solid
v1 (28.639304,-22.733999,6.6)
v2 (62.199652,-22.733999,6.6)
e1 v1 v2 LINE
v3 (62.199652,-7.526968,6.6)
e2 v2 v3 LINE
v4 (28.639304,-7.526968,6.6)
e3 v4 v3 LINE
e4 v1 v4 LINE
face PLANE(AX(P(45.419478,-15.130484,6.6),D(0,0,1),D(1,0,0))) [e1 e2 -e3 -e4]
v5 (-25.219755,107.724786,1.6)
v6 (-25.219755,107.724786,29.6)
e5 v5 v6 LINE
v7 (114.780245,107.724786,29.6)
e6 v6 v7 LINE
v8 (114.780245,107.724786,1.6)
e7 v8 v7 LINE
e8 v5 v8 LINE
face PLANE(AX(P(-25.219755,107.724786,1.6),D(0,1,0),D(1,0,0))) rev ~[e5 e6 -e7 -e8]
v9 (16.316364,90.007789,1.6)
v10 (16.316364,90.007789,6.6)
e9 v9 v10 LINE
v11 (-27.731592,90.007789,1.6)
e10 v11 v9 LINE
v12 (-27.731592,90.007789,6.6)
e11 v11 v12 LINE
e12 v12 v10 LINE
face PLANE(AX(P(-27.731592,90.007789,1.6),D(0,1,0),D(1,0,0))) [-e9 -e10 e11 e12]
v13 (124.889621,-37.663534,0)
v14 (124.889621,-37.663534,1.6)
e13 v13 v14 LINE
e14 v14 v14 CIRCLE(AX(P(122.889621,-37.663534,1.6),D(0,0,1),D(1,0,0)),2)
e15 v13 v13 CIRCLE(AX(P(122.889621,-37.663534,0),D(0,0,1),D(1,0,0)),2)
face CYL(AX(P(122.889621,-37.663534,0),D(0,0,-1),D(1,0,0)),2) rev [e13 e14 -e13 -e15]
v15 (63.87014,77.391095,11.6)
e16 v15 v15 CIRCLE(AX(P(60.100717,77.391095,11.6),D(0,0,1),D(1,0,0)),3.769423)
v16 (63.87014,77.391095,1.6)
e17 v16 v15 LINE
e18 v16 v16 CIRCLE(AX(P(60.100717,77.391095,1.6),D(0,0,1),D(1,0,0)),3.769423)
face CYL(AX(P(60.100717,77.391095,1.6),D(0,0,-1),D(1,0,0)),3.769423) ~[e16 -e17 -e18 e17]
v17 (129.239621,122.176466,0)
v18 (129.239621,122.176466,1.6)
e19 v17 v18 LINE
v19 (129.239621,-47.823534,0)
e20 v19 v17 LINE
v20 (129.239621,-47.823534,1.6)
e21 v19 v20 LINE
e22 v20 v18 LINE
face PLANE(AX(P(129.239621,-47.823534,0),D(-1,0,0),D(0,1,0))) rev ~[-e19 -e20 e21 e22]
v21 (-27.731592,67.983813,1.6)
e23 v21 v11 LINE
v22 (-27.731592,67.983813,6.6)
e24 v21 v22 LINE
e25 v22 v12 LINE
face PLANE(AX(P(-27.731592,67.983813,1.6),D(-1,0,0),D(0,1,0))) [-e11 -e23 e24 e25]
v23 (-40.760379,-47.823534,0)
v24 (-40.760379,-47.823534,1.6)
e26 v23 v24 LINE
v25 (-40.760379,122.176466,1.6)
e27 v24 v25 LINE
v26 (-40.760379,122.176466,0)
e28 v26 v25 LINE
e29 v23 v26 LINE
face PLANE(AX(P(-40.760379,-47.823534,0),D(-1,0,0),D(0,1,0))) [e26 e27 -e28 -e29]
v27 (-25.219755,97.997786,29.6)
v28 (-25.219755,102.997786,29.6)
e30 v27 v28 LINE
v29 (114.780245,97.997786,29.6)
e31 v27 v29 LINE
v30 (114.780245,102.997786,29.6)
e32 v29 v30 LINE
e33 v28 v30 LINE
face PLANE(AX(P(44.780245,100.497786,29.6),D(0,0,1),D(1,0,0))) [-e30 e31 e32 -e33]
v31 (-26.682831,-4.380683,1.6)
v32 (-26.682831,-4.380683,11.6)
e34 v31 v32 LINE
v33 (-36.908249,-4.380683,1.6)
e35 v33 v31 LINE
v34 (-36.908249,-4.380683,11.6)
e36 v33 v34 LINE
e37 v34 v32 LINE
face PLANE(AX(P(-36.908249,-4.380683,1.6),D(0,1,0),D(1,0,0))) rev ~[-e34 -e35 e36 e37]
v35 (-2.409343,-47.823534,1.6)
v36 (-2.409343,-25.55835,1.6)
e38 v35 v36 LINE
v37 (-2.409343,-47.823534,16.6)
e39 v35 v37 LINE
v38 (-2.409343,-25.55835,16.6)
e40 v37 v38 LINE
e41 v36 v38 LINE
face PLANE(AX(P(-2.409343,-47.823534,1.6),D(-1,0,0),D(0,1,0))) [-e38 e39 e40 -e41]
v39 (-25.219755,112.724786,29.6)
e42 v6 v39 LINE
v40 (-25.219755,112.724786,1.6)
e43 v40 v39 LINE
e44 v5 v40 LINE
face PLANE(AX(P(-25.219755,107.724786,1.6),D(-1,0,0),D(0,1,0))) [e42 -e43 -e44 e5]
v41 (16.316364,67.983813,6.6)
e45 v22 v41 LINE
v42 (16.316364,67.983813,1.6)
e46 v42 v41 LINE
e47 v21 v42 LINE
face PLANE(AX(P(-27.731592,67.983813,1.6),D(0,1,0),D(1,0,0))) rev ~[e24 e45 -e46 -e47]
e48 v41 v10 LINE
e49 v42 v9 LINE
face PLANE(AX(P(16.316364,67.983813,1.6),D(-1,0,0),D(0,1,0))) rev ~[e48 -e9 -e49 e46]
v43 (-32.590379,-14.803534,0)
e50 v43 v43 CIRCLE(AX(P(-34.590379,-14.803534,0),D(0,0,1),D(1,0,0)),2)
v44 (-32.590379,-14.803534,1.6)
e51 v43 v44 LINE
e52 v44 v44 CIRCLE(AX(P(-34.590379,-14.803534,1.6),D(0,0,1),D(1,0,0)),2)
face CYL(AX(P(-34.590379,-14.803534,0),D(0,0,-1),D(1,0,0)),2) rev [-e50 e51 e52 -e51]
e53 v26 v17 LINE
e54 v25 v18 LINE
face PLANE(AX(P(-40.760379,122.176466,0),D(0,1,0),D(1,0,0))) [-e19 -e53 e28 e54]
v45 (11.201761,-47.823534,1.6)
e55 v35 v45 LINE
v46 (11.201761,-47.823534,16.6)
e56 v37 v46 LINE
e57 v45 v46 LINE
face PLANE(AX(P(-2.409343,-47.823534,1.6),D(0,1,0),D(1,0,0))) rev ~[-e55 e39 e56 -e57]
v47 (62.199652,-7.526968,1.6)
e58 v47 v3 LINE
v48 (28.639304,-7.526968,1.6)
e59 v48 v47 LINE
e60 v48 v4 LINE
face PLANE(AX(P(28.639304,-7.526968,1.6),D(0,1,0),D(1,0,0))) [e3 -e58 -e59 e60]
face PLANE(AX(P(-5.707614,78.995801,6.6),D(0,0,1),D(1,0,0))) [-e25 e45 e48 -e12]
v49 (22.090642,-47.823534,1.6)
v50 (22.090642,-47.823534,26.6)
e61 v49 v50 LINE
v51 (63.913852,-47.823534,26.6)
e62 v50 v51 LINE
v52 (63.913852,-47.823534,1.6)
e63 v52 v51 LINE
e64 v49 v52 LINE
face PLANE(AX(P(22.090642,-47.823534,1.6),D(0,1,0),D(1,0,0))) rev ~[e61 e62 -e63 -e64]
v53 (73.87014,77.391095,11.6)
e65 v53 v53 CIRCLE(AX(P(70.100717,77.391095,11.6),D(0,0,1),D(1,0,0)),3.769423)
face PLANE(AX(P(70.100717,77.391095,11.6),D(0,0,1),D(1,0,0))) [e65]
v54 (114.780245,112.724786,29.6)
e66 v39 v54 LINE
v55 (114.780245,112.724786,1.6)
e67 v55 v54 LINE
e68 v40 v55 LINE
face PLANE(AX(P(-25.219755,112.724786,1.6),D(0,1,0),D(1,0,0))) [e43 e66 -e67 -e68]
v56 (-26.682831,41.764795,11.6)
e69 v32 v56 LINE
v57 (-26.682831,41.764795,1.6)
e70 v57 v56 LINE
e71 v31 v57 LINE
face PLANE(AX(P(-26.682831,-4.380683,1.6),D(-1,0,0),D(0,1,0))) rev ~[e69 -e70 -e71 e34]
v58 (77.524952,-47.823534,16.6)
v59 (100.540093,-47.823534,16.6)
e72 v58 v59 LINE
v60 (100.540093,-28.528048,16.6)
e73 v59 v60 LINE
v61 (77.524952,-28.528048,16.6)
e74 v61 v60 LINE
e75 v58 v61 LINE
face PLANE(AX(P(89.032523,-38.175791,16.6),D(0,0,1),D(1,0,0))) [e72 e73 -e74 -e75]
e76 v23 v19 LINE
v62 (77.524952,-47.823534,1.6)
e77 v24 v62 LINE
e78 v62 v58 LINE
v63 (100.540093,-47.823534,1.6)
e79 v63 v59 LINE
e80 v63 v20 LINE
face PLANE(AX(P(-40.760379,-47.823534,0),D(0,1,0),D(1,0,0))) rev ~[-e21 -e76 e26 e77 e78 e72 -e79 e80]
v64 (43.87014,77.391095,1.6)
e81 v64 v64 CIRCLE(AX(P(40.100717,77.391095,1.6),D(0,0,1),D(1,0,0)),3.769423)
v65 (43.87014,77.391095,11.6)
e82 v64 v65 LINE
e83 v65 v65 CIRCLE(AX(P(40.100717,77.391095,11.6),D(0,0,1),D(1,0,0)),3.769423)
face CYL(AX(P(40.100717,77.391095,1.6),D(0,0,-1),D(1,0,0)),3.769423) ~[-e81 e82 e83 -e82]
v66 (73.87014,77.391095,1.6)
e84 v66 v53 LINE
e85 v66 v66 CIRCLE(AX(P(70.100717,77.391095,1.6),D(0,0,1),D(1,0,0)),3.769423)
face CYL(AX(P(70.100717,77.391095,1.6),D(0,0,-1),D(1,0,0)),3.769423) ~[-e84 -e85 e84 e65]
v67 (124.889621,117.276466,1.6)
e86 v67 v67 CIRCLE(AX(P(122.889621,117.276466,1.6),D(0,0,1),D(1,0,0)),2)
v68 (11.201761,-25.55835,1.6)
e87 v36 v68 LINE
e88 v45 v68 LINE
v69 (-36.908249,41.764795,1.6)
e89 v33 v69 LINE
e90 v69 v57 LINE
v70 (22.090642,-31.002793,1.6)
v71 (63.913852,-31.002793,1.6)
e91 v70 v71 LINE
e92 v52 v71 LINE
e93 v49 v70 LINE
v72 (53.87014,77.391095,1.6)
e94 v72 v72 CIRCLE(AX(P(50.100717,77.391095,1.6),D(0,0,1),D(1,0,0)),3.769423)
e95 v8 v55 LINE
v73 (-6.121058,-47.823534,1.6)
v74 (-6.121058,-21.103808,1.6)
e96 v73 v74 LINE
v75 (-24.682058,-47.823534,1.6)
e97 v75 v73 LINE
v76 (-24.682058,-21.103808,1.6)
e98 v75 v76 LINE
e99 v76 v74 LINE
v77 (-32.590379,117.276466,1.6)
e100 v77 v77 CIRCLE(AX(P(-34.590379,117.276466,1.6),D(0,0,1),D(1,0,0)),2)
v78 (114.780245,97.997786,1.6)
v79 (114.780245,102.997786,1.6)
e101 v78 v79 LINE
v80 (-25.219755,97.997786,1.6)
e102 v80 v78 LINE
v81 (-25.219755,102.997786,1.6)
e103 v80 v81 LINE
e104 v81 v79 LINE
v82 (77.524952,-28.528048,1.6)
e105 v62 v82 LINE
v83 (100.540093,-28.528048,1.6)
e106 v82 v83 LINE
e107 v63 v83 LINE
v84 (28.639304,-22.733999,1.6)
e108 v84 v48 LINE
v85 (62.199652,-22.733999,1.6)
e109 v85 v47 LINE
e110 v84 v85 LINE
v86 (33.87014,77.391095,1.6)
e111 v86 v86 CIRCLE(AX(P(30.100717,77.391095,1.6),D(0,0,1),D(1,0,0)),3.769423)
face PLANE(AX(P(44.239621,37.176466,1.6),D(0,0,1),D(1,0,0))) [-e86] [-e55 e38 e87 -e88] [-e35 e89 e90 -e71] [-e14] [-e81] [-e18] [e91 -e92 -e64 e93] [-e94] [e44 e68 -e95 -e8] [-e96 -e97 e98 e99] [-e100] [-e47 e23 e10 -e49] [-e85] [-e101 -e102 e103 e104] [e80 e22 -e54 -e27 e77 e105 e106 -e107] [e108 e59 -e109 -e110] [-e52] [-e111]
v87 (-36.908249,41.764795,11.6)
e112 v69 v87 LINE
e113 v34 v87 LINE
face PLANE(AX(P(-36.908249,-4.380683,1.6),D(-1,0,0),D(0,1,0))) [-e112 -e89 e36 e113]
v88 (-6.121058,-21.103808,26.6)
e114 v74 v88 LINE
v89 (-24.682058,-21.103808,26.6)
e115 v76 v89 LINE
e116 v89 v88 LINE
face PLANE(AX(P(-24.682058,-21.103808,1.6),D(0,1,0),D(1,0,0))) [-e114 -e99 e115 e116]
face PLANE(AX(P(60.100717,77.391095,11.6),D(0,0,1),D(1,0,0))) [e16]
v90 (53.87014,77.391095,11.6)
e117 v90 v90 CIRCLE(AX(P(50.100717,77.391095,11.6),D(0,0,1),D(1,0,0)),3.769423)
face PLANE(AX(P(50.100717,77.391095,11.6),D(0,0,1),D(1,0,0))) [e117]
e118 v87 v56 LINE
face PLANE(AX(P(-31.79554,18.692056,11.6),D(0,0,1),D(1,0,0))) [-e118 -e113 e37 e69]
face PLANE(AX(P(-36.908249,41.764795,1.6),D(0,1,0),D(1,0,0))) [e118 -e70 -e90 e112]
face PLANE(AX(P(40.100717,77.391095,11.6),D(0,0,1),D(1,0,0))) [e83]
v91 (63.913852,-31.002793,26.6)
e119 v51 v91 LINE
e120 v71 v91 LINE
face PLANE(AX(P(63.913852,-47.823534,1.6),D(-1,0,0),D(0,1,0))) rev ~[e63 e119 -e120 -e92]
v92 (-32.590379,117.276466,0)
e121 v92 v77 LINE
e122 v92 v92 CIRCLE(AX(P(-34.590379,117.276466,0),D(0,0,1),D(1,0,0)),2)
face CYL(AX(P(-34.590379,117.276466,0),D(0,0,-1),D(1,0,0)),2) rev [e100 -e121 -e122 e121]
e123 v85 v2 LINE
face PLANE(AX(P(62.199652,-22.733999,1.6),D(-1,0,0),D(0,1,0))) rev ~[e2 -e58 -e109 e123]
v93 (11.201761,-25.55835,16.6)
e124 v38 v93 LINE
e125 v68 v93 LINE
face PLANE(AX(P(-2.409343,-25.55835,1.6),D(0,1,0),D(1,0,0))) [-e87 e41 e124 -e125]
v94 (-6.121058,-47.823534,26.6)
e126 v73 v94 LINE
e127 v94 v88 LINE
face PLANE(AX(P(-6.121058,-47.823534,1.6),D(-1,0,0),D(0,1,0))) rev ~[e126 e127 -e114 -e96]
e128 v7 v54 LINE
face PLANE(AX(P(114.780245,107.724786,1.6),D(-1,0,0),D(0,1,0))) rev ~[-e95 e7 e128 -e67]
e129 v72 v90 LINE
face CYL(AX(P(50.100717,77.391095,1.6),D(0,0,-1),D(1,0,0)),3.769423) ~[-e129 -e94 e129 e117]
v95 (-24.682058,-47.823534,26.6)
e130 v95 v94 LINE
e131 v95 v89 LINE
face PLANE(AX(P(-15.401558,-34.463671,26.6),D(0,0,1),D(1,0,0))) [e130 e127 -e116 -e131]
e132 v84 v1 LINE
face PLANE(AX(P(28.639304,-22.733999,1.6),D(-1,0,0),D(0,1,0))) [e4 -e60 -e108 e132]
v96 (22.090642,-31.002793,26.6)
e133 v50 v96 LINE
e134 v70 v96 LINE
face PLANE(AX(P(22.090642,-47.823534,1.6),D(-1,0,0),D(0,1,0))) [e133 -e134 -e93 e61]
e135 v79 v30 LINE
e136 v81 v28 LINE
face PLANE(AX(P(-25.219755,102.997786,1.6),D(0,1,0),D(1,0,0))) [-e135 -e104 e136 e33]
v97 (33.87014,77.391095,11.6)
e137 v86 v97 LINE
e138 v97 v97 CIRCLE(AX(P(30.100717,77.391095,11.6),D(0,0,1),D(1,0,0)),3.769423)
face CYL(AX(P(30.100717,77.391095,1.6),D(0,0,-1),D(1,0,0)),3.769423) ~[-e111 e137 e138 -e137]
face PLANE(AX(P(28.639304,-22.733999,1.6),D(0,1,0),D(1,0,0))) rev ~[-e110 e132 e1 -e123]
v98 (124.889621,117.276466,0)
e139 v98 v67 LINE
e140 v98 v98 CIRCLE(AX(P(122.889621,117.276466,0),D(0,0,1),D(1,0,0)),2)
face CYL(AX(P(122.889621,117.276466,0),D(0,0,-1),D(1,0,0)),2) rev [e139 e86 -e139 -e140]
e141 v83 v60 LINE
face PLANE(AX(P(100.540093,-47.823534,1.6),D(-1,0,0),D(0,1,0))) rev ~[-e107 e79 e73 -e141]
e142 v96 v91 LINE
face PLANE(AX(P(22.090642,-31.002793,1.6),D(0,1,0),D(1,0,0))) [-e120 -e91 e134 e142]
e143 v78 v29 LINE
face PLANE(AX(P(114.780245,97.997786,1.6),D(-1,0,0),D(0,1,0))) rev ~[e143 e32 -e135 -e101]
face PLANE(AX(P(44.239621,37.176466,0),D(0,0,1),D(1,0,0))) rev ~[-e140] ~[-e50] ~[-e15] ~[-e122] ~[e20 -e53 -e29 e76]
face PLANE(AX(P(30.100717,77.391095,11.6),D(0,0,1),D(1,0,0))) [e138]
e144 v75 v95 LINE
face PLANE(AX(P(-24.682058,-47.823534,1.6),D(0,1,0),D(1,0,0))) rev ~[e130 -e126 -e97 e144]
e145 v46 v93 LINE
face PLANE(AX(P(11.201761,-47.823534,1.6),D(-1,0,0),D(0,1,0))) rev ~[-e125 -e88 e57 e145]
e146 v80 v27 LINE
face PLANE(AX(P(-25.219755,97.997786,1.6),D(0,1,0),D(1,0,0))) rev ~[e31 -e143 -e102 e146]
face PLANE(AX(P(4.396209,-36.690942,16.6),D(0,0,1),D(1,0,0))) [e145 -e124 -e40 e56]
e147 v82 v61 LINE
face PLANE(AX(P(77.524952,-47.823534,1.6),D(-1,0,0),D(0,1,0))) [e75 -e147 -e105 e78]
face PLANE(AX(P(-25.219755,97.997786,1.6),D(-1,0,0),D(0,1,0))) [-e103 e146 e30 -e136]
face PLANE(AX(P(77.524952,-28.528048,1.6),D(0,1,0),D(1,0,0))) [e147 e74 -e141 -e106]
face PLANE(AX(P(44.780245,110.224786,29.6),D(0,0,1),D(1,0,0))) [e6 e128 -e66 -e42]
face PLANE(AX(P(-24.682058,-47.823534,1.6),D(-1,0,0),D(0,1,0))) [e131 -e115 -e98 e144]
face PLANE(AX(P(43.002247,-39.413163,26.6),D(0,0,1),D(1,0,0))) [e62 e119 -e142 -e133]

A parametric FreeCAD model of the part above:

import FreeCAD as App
import Part
import Sketcher

V = App.Vector
Q = App.Units.Quantity


def add_polygon(sketch, points):
    """Adds a closed chain of lines whose ends are joined by coincident constraints."""
    first, n = sketch.GeometryCount, len(points)
    for a, b in zip(points, points[1:] + points[:1]):
        sketch.addGeometry(Part.LineSegment(App.Vector(*a, 0), App.Vector(*b, 0)), False)
    for i in range(n):
        sketch.addConstraint(Sketcher.Constraint("Coincident", first + i, 2, first + (i + 1) % n, 1))

doc = App.newDocument("Part")
body = doc.addObject("PartDesign::Body", "Body")

# Sketch on XY plane
sketch1 = doc.addObject("Sketcher::SketchObject", "Sketch")
body.addObject(sketch1)
sketch1.AttachmentSupport = (doc.XY_Plane, [""])
sketch1.MapMode = "FlatFace"
add_polygon(sketch1, [(-40.760379, 122.176466), (-40.760379, -47.823534), (129.239621, -47.823534), (129.239621, 122.176466)])  # lines 0-3
sketch1.addGeometry(Part.Circle(V(-34.590379, -14.803534, 0), V(0, 0, 1), 2), False)  # 4
sketch1.addGeometry(Part.Circle(V(122.889621, -37.663534, 0), V(0, 0, 1), 2), False)  # 5
sketch1.addGeometry(Part.Circle(V(-34.590379, 117.276466, 0), V(0, 0, 1), 2), False)  # 6
sketch1.addGeometry(Part.Circle(V(122.889621, 117.276466, 0), V(0, 0, 1), 2), False)  # 7
sketch1.addConstraint([
    Sketcher.Constraint("Vertical", 0),
    Sketcher.Constraint("Horizontal", 1),
    Sketcher.Constraint("Vertical", 2),
    Sketcher.Constraint("Horizontal", 3),
    Sketcher.Constraint("Equal", 4, 5),
    Sketcher.Constraint("Equal", 5, 6),
    Sketcher.Constraint("Equal", 6, 7),
    Sketcher.Constraint("Horizontal", 6, 3, 7, 3),
    Sketcher.Constraint("Vertical", 4, 3, 6, 3),
    Sketcher.Constraint("Vertical", 5, 3, 7, 3),
    Sketcher.Constraint("Equal", 3, 0),
    Sketcher.Constraint("Diameter", 4, Q("4 mm")),
    Sketcher.Constraint("DistanceX", 1, 1, 1, 2, Q("170 mm")),
    Sketcher.Constraint("DistanceY", 0, 2, 6, 3, Q("165.1 mm")),
    Sketcher.Constraint("DistanceX", 4, 3, 5, 3, Q("157.48 mm")),
    Sketcher.Constraint("DistanceY", 5, 3, 4, 3, Q("22.86 mm")),
    Sketcher.Constraint("DistanceY", 4, 3, 6, 3, Q("132.08 mm")),
    Sketcher.Constraint("DistanceX", 0, 2, 4, 3, Q("6.17 mm")),
    Sketcher.Constraint("DistanceX", 4, 3, -1, 1, Q("34.590379 mm")),
    Sketcher.Constraint("DistanceY", 4, 3, -1, 1, Q("14.803534 mm")),
])
pad1 = doc.addObject("PartDesign::Pad", "Pad")
body.addObject(pad1)
pad1.Profile = sketch1
pad1.Length = 1.6

# Sketch on XY plane
sketch2 = doc.addObject("Sketcher::SketchObject", "Sketch001")
body.addObject(sketch2)
sketch2.AttachmentSupport = (doc.XY_Plane, [""])
sketch2.MapMode = "FlatFace"
sketch2.AttachmentOffset = App.Placement(V(0, 0, 1.6), App.Rotation())
add_polygon(sketch2, [(-25.219755, 102.997786), (-25.219755, 97.997786), (114.780245, 97.997786), (114.780245, 102.997786)])  # lines 0-3
add_polygon(sketch2, [(-25.219755, 112.724786), (-25.219755, 107.724786), (114.780245, 107.724786), (114.780245, 112.724786)])  # lines 4-7
sketch2.addConstraint([
    Sketcher.Constraint("Vertical", 0),
    Sketcher.Constraint("Horizontal", 1),
    Sketcher.Constraint("Vertical", 2),
    Sketcher.Constraint("Horizontal", 3),
    Sketcher.Constraint("Vertical", 4),
    Sketcher.Constraint("Horizontal", 5),
    Sketcher.Constraint("Vertical", 6),
    Sketcher.Constraint("Horizontal", 7),
    Sketcher.Constraint("Vertical", 3, 2, 4, 2),
    Sketcher.Constraint("Vertical", 2, 2, 5, 2),
    Sketcher.Constraint("Equal", 2, 4),
    Sketcher.Constraint("DistanceX", 1, 1, 1, 2, Q("140 mm")),
    Sketcher.Constraint("DistanceY", 0, 2, 0, 1, Q("5 mm")),
    Sketcher.Constraint("DistanceY", 3, 2, 4, 2, Q("4.727 mm")),
    Sketcher.Constraint("DistanceX", 0, 2, -1, 1, Q("25.219755 mm")),
    Sketcher.Constraint("DistanceY", -1, 1, 0, 2, Q("97.997786 mm")),
])
pad2 = doc.addObject("PartDesign::Pad", "Pad001")
body.addObject(pad2)
pad2.Profile = sketch2
pad2.Length = 28

# Sketch on XY plane
sketch3 = doc.addObject("Sketcher::SketchObject", "Sketch002")
body.addObject(sketch3)
sketch3.AttachmentSupport = (doc.XY_Plane, [""])
sketch3.MapMode = "FlatFace"
sketch3.AttachmentOffset = App.Placement(V(0, 0, 1.6), App.Rotation())
add_polygon(sketch3, [(-24.682058, -21.103808), (-24.682058, -47.823534), (-6.121058, -47.823534), (-6.121058, -21.103808)])  # lines 0-3
add_polygon(sketch3, [(22.090642, -31.002793), (22.090642, -47.823534), (63.913852, -47.823534), (63.913852, -31.002793)])  # lines 4-7
sketch3.addConstraint([
    Sketcher.Constraint("Vertical", 0),
    Sketcher.Constraint("Horizontal", 1),
    Sketcher.Constraint("Vertical", 2),
    Sketcher.Constraint("Horizontal", 3),
    Sketcher.Constraint("Vertical", 4),
    Sketcher.Constraint("Horizontal", 5),
    Sketcher.Constraint("Vertical", 6),
    Sketcher.Constraint("Horizontal", 7),
    Sketcher.Constraint("Horizontal", 1, 2, 4, 2),
    Sketcher.Constraint("DistanceX", 1, 1, 1, 2, Q("18.561 mm")),
    Sketcher.Constraint("DistanceX", 5, 1, 5, 2, Q("41.82321 mm")),
    Sketcher.Constraint("DistanceY", 4, 2, 4, 1, Q("16.820741 mm")),
    Sketcher.Constraint("DistanceX", 1, 2, 4, 2, Q("28.2117 mm")),
    Sketcher.Constraint("DistanceY", 0, 2, 0, 1, Q("26.719725 mm")),
    Sketcher.Constraint("DistanceX", 0, 2, -1, 1, Q("24.682058 mm")),
    Sketcher.Constraint("DistanceY", 2, 2, -1, 1, Q("21.103808 mm")),
])
pad3 = doc.addObject("PartDesign::Pad", "Pad002")
body.addObject(pad3)
pad3.Profile = sketch3
pad3.Length = 25

# Sketch on XY plane
sketch4 = doc.addObject("Sketcher::SketchObject", "Sketch003")
body.addObject(sketch4)
sketch4.AttachmentSupport = (doc.XY_Plane, [""])
sketch4.MapMode = "FlatFace"
sketch4.AttachmentOffset = App.Placement(V(0, 0, 1.6), App.Rotation())
add_polygon(sketch4, [(-2.409343, -25.55835), (-2.409343, -47.823534), (11.201761, -47.823534), (11.201761, -25.55835)])  # lines 0-3
add_polygon(sketch4, [(77.524952, -28.528048), (77.524952, -47.823534), (100.540093, -47.823534), (100.540093, -28.528048)])  # lines 4-7
sketch4.addConstraint([
    Sketcher.Constraint("Vertical", 0),
    Sketcher.Constraint("Horizontal", 1),
    Sketcher.Constraint("Vertical", 2),
    Sketcher.Constraint("Horizontal", 3),
    Sketcher.Constraint("Vertical", 4),
    Sketcher.Constraint("Horizontal", 5),
    Sketcher.Constraint("Vertical", 6),
    Sketcher.Constraint("Horizontal", 7),
    Sketcher.Constraint("Horizontal", 1, 2, 4, 2),
    Sketcher.Constraint("DistanceX", 5, 1, 5, 2, Q("23.015141 mm")),
    Sketcher.Constraint("DistanceX", 1, 1, 1, 2, Q("13.611103 mm")),
    Sketcher.Constraint("DistanceY", 0, 2, 0, 1, Q("22.265183 mm")),
    Sketcher.Constraint("DistanceY", 4, 2, 4, 1, Q("19.295486 mm")),
    Sketcher.Constraint("DistanceX", -1, 1, 1, 2, Q("11.201761 mm")),
    Sketcher.Constraint("DistanceY", 2, 2, -1, 1, Q("25.55835 mm")),
    Sketcher.Constraint("DistanceX", 1, 2, 4, 2, Q("66.323192 mm")),
])
pad4 = doc.addObject("PartDesign::Pad", "Pad003")
body.addObject(pad4)
pad4.Profile = sketch4
pad4.Length = 15

# Sketch on XY plane
sketch5 = doc.addObject("Sketcher::SketchObject", "Sketch004")
body.addObject(sketch5)
sketch5.AttachmentSupport = (doc.XY_Plane, [""])
sketch5.MapMode = "FlatFace"
sketch5.AttachmentOffset = App.Placement(V(0, 0, 1.6), App.Rotation())
sketch5.addGeometry([
    Part.Circle(V(30.100717, 77.391095, 0), V(0, 0, 1), 3.769423),  # 0
    Part.Circle(V(40.100717, 77.391095, 0), V(0, 0, 1), 3.769423),  # 1
    Part.Circle(V(50.100717, 77.391095, 0), V(0, 0, 1), 3.769423),  # 2
    Part.Circle(V(60.100717, 77.391095, 0), V(0, 0, 1), 3.769423),  # 3
    Part.Circle(V(70.100717, 77.391095, 0), V(0, 0, 1), 3.769423),  # 4
], False)
sketch5.addConstraint([
    Sketcher.Constraint("Equal", 0, 1),
    Sketcher.Constraint("Equal", 1, 2),
    Sketcher.Constraint("Equal", 2, 3),
    Sketcher.Constraint("Equal", 3, 4),
    Sketcher.Constraint("Horizontal", 0, 3, 1, 3),
    Sketcher.Constraint("Horizontal", 1, 3, 2, 3),
    Sketcher.Constraint("Horizontal", 2, 3, 3, 3),
    Sketcher.Constraint("Horizontal", 3, 3, 4, 3),
    Sketcher.Constraint("DistanceX", 0, 3, 1, 3, Q("10 mm")),
    Sketcher.Constraint("DistanceX", 1, 3, 2, 3, Q("10 mm")),
    Sketcher.Constraint("DistanceX", 2, 3, 3, 3, Q("10 mm")),
    Sketcher.Constraint("DistanceX", 3, 3, 4, 3, Q("10 mm")),
    Sketcher.Constraint("Diameter", 0, Q("7.538846 mm")),
    Sketcher.Constraint("DistanceX", -1, 1, 0, 3, Q("30.100717 mm")),
    Sketcher.Constraint("DistanceY", -1, 1, 0, 3, Q("77.391095 mm")),
])
pad5 = doc.addObject("PartDesign::Pad", "Pad004")
body.addObject(pad5)
pad5.Profile = sketch5
pad5.Length = 10

# Sketch on XY plane
sketch6 = doc.addObject("Sketcher::SketchObject", "Sketch005")
body.addObject(sketch6)
sketch6.AttachmentSupport = (doc.XY_Plane, [""])
sketch6.MapMode = "FlatFace"
sketch6.AttachmentOffset = App.Placement(V(0, 0, 1.6), App.Rotation())
add_polygon(sketch6, [(28.639304, -7.526968), (28.639304, -22.733999), (62.199652, -22.733999), (62.199652, -7.526968)])  # lines 0-3
add_polygon(sketch6, [(-27.731592, 90.007789), (-27.731592, 67.983813), (16.316364, 67.983813), (16.316364, 90.007789)])  # lines 4-7
sketch6.addConstraint([
    Sketcher.Constraint("Vertical", 0),
    Sketcher.Constraint("Horizontal", 1),
    Sketcher.Constraint("Vertical", 2),
    Sketcher.Constraint("Horizontal", 3),
    Sketcher.Constraint("Vertical", 4),
    Sketcher.Constraint("Horizontal", 5),
    Sketcher.Constraint("Vertical", 6),
    Sketcher.Constraint("Horizontal", 7),
    Sketcher.Constraint("DistanceY", 0, 2, -1, 1, Q("22.733999 mm")),
    Sketcher.Constraint("DistanceX", 1, 1, 1, 2, Q("33.560348 mm")),
    Sketcher.Constraint("DistanceY", 0, 2, 0, 1, Q("15.207031 mm")),
    Sketcher.Constraint("DistanceX", 5, 1, 5, 2, Q("44.047956 mm")),
    Sketcher.Constraint("DistanceY", 4, 2, 4, 1, Q("22.023975 mm")),
    Sketcher.Constraint("DistanceX", 4, 2, -1, 1, Q("27.731592 mm")),
    Sketcher.Constraint("DistanceY", -1, 1, 6, 2, Q("90.007789 mm")),
    Sketcher.Constraint("DistanceX", 5, 2, 3, 2, Q("12.32294 mm")),
])
pad6 = doc.addObject("PartDesign::Pad", "Pad005")
body.addObject(pad6)
pad6.Profile = sketch6
pad6.Length = 5

# Sketch on XY plane
sketch7 = doc.addObject("Sketcher::SketchObject", "Sketch006")
body.addObject(sketch7)
sketch7.AttachmentSupport = (doc.XY_Plane, [""])
sketch7.MapMode = "FlatFace"
sketch7.AttachmentOffset = App.Placement(V(0, 0, 1.6), App.Rotation())
add_polygon(sketch7, [(-36.908249, 41.764795), (-36.908249, -4.380683), (-26.682831, -4.380683), (-26.682831, 41.764795)])  # lines 0-3
sketch7.addConstraint([
    Sketcher.Constraint("Vertical", 0),
    Sketcher.Constraint("Horizontal", 1),
    Sketcher.Constraint("Vertical", 2),
    Sketcher.Constraint("Horizontal", 3),
    Sketcher.Constraint("DistanceX", 1, 1, 1, 2, Q("10.225419 mm")),
    Sketcher.Constraint("DistanceY", 0, 2, 0, 1, Q("46.145479 mm")),
    Sketcher.Constraint("DistanceX", 0, 2, -1, 1, Q("36.908249 mm")),
    Sketcher.Constraint("DistanceY", 0, 2, -1, 1, Q("4.380683 mm")),
])
pad7 = doc.addObject("PartDesign::Pad", "Pad006")
body.addObject(pad7)
pad7.Profile = sketch7
pad7.Length = 10

doc.recompute()
